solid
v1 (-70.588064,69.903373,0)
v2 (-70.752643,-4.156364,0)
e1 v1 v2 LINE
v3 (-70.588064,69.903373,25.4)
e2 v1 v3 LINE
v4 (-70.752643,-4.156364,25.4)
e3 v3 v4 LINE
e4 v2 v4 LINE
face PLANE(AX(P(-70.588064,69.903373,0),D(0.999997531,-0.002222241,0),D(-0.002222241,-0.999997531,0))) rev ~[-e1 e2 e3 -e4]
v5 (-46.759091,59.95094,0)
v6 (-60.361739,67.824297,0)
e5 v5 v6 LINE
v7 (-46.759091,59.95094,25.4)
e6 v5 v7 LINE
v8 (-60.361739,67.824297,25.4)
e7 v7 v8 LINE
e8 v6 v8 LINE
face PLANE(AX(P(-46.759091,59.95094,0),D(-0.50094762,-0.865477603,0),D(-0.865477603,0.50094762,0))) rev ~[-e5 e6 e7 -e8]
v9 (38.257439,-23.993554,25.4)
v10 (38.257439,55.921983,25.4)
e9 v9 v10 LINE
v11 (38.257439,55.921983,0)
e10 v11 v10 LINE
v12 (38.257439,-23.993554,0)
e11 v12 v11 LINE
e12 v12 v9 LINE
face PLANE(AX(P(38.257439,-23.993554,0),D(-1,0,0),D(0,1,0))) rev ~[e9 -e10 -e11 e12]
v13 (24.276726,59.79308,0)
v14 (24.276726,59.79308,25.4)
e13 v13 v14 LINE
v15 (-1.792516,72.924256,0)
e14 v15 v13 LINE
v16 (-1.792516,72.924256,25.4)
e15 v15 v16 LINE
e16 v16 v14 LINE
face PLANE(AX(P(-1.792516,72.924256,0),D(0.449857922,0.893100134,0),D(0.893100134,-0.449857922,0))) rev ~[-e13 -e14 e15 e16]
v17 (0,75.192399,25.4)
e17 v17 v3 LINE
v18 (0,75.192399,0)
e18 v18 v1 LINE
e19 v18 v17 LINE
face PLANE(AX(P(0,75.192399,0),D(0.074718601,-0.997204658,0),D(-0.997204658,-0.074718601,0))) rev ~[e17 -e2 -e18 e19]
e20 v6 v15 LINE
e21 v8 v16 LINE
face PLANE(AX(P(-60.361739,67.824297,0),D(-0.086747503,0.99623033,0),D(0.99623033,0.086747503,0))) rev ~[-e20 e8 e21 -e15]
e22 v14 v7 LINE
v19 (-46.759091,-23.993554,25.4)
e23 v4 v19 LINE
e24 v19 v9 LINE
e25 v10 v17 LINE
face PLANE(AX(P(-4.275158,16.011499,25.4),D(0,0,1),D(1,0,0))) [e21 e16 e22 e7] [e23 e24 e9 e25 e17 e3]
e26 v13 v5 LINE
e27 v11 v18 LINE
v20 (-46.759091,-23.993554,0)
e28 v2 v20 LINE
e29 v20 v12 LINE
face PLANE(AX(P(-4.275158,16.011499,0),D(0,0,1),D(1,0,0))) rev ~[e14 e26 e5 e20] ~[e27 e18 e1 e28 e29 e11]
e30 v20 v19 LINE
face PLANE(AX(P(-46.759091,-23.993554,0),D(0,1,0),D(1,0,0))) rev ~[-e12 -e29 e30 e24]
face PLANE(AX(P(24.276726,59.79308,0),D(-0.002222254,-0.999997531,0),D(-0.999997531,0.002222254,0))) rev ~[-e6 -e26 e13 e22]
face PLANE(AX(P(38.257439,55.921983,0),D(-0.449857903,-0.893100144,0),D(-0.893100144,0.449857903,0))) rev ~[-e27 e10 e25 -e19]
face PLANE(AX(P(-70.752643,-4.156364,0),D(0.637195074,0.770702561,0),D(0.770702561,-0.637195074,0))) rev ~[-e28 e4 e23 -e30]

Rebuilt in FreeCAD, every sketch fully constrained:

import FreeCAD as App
import Part
import Sketcher

V = App.Vector
Q = App.Units.Quantity

doc = App.newDocument("Part")
body = doc.addObject("PartDesign::Body", "Body")

sketch1 = body.newObject("Sketcher::SketchObject", "Sketch")
sketch1.AttachmentSupport = (doc.getObject("XY_Plane"), [""])
sketch1.MapMode = "FlatFace"
sketch1.addGeometry([
    Part.LineSegment(V(-47, -24, 0), V(38, -24, 0)),
    Part.LineSegment(V(38, -24, 0), V(38, 56, 0)),
    Part.LineSegment(V(38, 56, 0), V(0, 75, 0)),
    Part.LineSegment(V(0, 75, 0), V(-71, 70, 0)),
    Part.LineSegment(V(-71, 70, 0), V(-71, -4, 0)),
    Part.LineSegment(V(-71, -4, 0), V(-47, -24, 0)),
    Part.LineSegment(V(24, 60, 0), V(-47, 60, 0)),
    Part.LineSegment(V(-47, 60, 0), V(-60, 68, 0)),
    Part.LineSegment(V(-60, 68, 0), V(-2, 73, 0)),
    Part.LineSegment(V(-2, 73, 0), V(24, 60, 0)),
], False)
sketch1.addConstraint([
    Sketcher.Constraint("Coincident", 0, 2, 1, 1),
    Sketcher.Constraint("Coincident", 1, 2, 2, 1),
    Sketcher.Constraint("Coincident", 2, 2, 3, 1),
    Sketcher.Constraint("Coincident", 3, 2, 4, 1),
    Sketcher.Constraint("Coincident", 4, 2, 5, 1),
    Sketcher.Constraint("Coincident", 5, 2, 0, 1),
    Sketcher.Constraint("Coincident", 6, 2, 7, 1),
    Sketcher.Constraint("Coincident", 7, 2, 8, 1),
    Sketcher.Constraint("Coincident", 8, 2, 9, 1),
    Sketcher.Constraint("Coincident", 9, 2, 6, 1),
    Sketcher.Constraint("Horizontal", 0),
    Sketcher.Constraint("Vertical", 1),
    Sketcher.Constraint("PointOnObject", 2, 2, -2),
    Sketcher.Constraint("Perpendicular", 4, 6),
    Sketcher.Constraint("Parallel", 2, 9),
    Sketcher.Constraint("Vertical", 5, 2, 6, 2),
    Sketcher.Constraint("Distance", 8, Q("2.3146002 in")),
    Sketcher.Constraint("DistanceX", 0, 1, 0, 2, Q("85.01653 mm")),
    Sketcher.Constraint("DistanceY", -1, 1, 2, 2, Q("75.192399 mm")),
    Sketcher.Constraint("DistanceY", 7, 2, 2, 2, Q("7.368102 mm")),
    Sketcher.Constraint("Distance", 4, Q("74.05992 mm")),
    Sketcher.Constraint("Distance", 5, Q("31.132052 mm")),
    Sketcher.Constraint("DistanceY", 1, 1, 1, 2, Q("79.915537 mm")),
    Sketcher.Constraint("DistanceX", -1, 1, 0, 2, Q("38.257439 mm")),
    Sketcher.Constraint("DistanceY", -1, 1, 6, 2, Q("59.95094 mm")),
    Sketcher.Constraint("DistanceX", 7, 2, -1, 1, Q("60.361739 mm")),
    Sketcher.Constraint("DistanceY", -1, 1, 9, 2, Q("59.79308 mm")),
    Sketcher.Constraint("DistanceY", 1, 2, 3, 2, Q("13.98139 mm")),
    Sketcher.Constraint("DistanceY", 4, 2, 7, 2, Q("71.980661 mm")),
    Sketcher.Constraint("DistanceY", 7, 2, 8, 2, Q("5.099959 mm")),
])
pad1 = body.newObject("PartDesign::Pad", "Pad")
pad1.Profile = sketch1
pad1.Length = Q("1 in")

doc.recompute()
